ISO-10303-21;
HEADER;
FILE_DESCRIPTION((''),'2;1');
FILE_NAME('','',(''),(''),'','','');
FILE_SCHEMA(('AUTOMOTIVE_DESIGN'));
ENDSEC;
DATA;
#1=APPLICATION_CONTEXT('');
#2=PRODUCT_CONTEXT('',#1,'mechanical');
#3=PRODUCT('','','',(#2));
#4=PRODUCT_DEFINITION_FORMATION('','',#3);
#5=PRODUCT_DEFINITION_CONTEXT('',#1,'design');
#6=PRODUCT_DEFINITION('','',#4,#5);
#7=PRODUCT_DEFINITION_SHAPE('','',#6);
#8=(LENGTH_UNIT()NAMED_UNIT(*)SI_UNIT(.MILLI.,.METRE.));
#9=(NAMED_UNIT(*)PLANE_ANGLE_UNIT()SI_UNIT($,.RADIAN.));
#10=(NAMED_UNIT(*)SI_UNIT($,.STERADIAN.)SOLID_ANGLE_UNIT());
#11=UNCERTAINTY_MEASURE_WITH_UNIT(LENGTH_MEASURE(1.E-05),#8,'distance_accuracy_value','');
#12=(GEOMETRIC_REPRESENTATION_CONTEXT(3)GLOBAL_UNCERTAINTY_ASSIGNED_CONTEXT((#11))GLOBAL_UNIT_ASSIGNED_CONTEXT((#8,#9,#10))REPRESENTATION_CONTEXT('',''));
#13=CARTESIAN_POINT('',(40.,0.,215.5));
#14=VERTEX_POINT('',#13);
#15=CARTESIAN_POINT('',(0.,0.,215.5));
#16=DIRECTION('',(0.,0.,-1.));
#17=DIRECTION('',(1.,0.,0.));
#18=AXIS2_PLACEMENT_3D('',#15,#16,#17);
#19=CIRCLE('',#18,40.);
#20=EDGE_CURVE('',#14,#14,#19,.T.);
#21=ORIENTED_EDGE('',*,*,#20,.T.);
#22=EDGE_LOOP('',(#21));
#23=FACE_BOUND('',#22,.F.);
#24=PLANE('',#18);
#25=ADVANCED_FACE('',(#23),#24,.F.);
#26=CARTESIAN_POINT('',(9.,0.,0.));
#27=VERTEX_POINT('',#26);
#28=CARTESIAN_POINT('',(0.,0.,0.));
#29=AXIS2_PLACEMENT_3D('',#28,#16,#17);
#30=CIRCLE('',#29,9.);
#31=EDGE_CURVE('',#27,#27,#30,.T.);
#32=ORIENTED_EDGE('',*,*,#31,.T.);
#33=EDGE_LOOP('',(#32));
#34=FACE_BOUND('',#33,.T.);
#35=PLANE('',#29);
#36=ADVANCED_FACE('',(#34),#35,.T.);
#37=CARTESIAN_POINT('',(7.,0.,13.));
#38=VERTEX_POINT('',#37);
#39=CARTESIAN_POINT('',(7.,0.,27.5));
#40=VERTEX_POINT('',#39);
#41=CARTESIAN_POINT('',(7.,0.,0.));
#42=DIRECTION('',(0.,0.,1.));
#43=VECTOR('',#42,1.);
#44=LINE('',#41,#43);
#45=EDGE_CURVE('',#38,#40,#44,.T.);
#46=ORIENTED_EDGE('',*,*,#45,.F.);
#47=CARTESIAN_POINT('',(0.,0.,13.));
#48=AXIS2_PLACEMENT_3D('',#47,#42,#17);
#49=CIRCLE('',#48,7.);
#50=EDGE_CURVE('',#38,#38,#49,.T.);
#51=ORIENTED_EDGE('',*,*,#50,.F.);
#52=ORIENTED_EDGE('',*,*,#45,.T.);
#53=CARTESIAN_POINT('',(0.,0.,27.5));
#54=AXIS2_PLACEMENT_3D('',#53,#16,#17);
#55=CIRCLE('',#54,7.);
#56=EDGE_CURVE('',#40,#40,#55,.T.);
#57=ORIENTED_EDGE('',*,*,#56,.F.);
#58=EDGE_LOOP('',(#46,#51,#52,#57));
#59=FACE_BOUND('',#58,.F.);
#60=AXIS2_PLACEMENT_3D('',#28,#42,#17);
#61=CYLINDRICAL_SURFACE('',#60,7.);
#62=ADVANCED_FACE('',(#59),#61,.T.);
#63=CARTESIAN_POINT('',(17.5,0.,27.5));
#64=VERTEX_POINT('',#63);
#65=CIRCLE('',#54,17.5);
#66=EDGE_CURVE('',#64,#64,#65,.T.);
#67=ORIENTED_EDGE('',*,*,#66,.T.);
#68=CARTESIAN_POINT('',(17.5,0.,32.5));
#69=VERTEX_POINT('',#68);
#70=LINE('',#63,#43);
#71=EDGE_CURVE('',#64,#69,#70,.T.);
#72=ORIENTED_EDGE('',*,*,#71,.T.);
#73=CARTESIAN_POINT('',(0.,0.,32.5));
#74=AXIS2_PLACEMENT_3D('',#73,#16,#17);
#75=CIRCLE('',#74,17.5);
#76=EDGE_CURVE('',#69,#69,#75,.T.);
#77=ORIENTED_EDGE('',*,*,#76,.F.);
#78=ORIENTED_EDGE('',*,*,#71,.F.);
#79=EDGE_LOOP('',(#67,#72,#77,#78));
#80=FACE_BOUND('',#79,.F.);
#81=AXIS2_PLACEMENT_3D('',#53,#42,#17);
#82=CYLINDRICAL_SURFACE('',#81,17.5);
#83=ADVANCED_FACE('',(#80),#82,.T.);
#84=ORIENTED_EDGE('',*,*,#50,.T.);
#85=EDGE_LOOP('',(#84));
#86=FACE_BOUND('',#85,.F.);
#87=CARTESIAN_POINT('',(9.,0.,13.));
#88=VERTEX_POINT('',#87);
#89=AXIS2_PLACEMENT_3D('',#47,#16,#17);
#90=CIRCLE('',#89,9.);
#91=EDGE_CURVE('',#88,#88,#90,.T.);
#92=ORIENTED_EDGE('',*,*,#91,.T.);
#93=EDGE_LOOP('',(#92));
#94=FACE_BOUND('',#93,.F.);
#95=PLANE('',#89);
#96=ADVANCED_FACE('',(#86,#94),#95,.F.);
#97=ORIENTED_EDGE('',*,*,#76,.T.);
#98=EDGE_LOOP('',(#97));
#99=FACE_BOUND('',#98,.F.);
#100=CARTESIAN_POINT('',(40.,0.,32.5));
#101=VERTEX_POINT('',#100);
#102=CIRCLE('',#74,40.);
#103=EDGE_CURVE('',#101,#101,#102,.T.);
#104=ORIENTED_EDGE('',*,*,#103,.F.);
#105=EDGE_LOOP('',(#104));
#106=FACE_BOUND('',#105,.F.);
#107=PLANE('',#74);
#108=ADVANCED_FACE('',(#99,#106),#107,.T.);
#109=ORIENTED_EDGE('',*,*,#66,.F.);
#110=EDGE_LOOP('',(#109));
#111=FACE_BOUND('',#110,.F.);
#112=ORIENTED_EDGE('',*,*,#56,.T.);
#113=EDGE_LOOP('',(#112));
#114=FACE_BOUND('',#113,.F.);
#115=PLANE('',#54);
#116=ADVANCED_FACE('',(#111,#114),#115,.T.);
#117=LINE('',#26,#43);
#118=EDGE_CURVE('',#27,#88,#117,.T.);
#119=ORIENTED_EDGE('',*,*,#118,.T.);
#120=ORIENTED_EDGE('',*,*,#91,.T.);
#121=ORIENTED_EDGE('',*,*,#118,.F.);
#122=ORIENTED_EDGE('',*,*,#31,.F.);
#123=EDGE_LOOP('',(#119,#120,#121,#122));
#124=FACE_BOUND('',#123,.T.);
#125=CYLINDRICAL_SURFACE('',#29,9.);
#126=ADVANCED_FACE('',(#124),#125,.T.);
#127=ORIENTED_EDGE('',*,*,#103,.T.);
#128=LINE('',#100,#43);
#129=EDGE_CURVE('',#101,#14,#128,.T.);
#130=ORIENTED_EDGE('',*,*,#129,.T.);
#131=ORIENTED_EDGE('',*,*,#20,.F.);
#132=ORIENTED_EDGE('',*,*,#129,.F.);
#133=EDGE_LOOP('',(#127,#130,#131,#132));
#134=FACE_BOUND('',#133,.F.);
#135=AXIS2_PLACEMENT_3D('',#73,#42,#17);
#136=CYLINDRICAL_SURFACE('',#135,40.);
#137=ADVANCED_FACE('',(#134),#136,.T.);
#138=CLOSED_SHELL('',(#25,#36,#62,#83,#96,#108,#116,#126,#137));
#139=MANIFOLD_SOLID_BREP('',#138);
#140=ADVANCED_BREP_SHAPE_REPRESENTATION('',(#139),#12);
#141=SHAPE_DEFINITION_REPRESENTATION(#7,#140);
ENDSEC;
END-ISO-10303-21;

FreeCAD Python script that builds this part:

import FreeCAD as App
import Part
import Sketcher

doc = App.newDocument("Part")
body = doc.addObject("PartDesign::Body", "Body")

sketch1 = doc.addObject("Sketcher::SketchObject", "Sketch")
body.addObject(sketch1)
sketch1.AttachmentSupport = (doc.XZ_Plane, [""])
sketch1.MapMode = "FlatFace"
sketch1.addGeometry([
    Part.LineSegment(App.Vector(40, 215.5, 0), App.Vector(0, 215.5, 0)),
    Part.LineSegment(App.Vector(0, 215.5, 0), App.Vector(0, 0, 0)),
    Part.LineSegment(App.Vector(0, 0, 0), App.Vector(7, 0, 0)),
    Part.LineSegment(App.Vector(7, 0, 0), App.Vector(7, 27.5, 0)),
    Part.LineSegment(App.Vector(7, 27.5, 0), App.Vector(17.5, 27.5, 0)),
    Part.LineSegment(App.Vector(17.5, 27.5, 0), App.Vector(17.5, 32.5, 0)),
    Part.LineSegment(App.Vector(17.5, 32.5, 0), App.Vector(40, 32.5, 0)),
    Part.LineSegment(App.Vector(40, 32.5, 0), App.Vector(40, 215.5, 0)),
], False)
sketch1.addConstraint([
    Sketcher.Constraint("Coincident", 0, 2, 1, 1),
    Sketcher.Constraint("Coincident", 1, 2, 2, 1),
    Sketcher.Constraint("Coincident", 2, 2, 3, 1),
    Sketcher.Constraint("Coincident", 3, 2, 4, 1),
    Sketcher.Constraint("Coincident", 4, 2, 5, 1),
    Sketcher.Constraint("Coincident", 5, 2, 6, 1),
    Sketcher.Constraint("Coincident", 6, 2, 7, 1),
    Sketcher.Constraint("Coincident", 7, 2, 0, 1),
    Sketcher.Constraint("Horizontal", 0),
    Sketcher.Constraint("Vertical", 1),
    Sketcher.Constraint("Horizontal", 2),
    Sketcher.Constraint("Vertical", 3),
    Sketcher.Constraint("Horizontal", 4),
    Sketcher.Constraint("Vertical", 5),
    Sketcher.Constraint("Horizontal", 6),
    Sketcher.Constraint("Vertical", 7),
    Sketcher.Constraint("Coincident", 1, 2, -1, 1),
    Sketcher.Constraint("DistanceX", 0, 2, 0, 1, 40.0),
    Sketcher.Constraint("DistanceX", 2, 1, 2, 2, 7.0),
    Sketcher.Constraint("DistanceY", 5, 1, 5, 2, 5.0),
    Sketcher.Constraint("DistanceY", 7, 1, 7, 2, 183.0),
    Sketcher.Constraint("DistanceX", 4, 1, 4, 2, 10.5),
    Sketcher.Constraint("DistanceY", 1, 2, 1, 1, 215.5),
])
revolution = doc.addObject("PartDesign::Revolution", "Revolution")
body.addObject(revolution)
revolution.Profile = sketch1
revolution.ReferenceAxis = (sketch1, ["V_Axis"])
revolution.Angle = 360

sketch2 = doc.addObject("Sketcher::SketchObject", "Sketch001")
body.addObject(sketch2)
sketch2.AttachmentSupport = (doc.XY_Plane, [""])
sketch2.MapMode = "FlatFace"
sketch2.addGeometry(Part.Circle(App.Vector(0, 0, 0), App.Vector(0, 0, 1), 9), False)
sketch2.addConstraint([
    Sketcher.Constraint("Coincident", 0, 3, -1, 1),
    Sketcher.Constraint("Diameter", 0, 18.0),
])
pad1 = doc.addObject("PartDesign::Pad", "Pad")
body.addObject(pad1)
pad1.Profile = sketch2
pad1.Length = 13

doc.recompute()
